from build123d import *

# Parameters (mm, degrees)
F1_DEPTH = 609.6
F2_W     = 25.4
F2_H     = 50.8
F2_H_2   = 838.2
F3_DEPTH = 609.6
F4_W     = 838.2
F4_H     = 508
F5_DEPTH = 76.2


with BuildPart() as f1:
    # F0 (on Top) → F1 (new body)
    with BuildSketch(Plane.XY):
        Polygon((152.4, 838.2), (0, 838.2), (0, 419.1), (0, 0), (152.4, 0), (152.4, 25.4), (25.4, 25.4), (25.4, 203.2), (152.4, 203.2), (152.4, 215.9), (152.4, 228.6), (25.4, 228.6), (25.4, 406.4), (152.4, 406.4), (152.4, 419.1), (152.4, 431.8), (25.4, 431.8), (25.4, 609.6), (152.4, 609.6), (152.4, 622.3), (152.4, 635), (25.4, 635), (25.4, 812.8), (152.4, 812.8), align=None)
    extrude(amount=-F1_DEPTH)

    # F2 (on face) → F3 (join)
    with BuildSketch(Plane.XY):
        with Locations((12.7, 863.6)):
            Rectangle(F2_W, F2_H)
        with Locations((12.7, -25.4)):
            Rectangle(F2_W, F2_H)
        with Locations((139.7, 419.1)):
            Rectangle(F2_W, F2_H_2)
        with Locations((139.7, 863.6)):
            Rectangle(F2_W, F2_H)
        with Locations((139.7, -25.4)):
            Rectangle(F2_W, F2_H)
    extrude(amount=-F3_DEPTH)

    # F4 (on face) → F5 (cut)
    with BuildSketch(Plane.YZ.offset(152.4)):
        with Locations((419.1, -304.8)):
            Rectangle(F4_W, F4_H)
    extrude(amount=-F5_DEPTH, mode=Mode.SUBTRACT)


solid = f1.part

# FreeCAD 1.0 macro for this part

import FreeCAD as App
import Part
import Sketcher

V = App.Vector
Q = App.Units.Quantity

doc = App.newDocument("Part")
body = doc.addObject("PartDesign::Body", "Body")

# Sketch on XY plane
sketch1 = body.newObject("Sketcher::SketchObject", "Sketch")
sketch1.AttachmentSupport = (doc.getObject("XY_Plane"), [""])
sketch1.MapMode = "FlatFace"
sketch1.addGeometry([
    Part.LineSegment(V(152.4, 838.2, 0), V(0, 838.2, 0)),  # 0
    Part.LineSegment(V(0, 838.2, 0), V(0, 0, 0)),  # 1
    Part.LineSegment(V(0, 0, 0), V(152.4, 0, 0)),  # 2
    Part.LineSegment(V(152.4, 0, 0), V(152.4, 25.4, 0)),  # 3
    Part.LineSegment(V(152.4, 25.4, 0), V(25.4, 25.4, 0)),  # 4
    Part.LineSegment(V(25.4, 25.4, 0), V(25.4, 203.2, 0)),  # 5
    Part.LineSegment(V(25.4, 203.2, 0), V(152.4, 203.2, 0)),  # 6
    Part.LineSegment(V(152.4, 203.2, 0), V(152.4, 228.6, 0)),  # 7
    Part.LineSegment(V(152.4, 228.6, 0), V(25.4, 228.6, 0)),  # 8
    Part.LineSegment(V(25.4, 228.6, 0), V(25.4, 406.4, 0)),  # 9
    Part.LineSegment(V(25.4, 406.4, 0), V(152.4, 406.4, 0)),  # 10
    Part.LineSegment(V(152.4, 406.4, 0), V(152.4, 431.8, 0)),  # 11
    Part.LineSegment(V(152.4, 431.8, 0), V(25.4, 431.8, 0)),  # 12
    Part.LineSegment(V(25.4, 431.8, 0), V(25.4, 609.6, 0)),  # 13
    Part.LineSegment(V(25.4, 609.6, 0), V(152.4, 609.6, 0)),  # 14
    Part.LineSegment(V(152.4, 609.6, 0), V(152.4, 635, 0)),  # 15
    Part.LineSegment(V(152.4, 635, 0), V(25.4, 635, 0)),  # 16
    Part.LineSegment(V(25.4, 635, 0), V(25.4, 812.8, 0)),  # 17
    Part.LineSegment(V(25.4, 812.8, 0), V(152.4, 812.8, 0)),  # 18
    Part.LineSegment(V(152.4, 812.8, 0), V(152.4, 838.2, 0)),  # 19
], False)
sketch1.addConstraint([
    Sketcher.Constraint("Coincident", 0, 2, 1, 1),
    Sketcher.Constraint("Coincident", 1, 2, 2, 1),
    Sketcher.Constraint("Coincident", 2, 2, 3, 1),
    Sketcher.Constraint("Coincident", 3, 2, 4, 1),
    Sketcher.Constraint("Coincident", 4, 2, 5, 1),
    Sketcher.Constraint("Coincident", 5, 2, 6, 1),
    Sketcher.Constraint("Coincident", 6, 2, 7, 1),
    Sketcher.Constraint("Coincident", 7, 2, 8, 1),
    Sketcher.Constraint("Coincident", 8, 2, 9, 1),
    Sketcher.Constraint("Coincident", 9, 2, 10, 1),
    Sketcher.Constraint("Coincident", 10, 2, 11, 1),
    Sketcher.Constraint("Coincident", 11, 2, 12, 1),
    Sketcher.Constraint("Coincident", 12, 2, 13, 1),
    Sketcher.Constraint("Coincident", 13, 2, 14, 1),
    Sketcher.Constraint("Coincident", 14, 2, 15, 1),
    Sketcher.Constraint("Coincident", 15, 2, 16, 1),
    Sketcher.Constraint("Coincident", 16, 2, 17, 1),
    Sketcher.Constraint("Coincident", 17, 2, 18, 1),
    Sketcher.Constraint("Coincident", 18, 2, 19, 1),
    Sketcher.Constraint("Coincident", 19, 2, 0, 1),
    Sketcher.Constraint("Horizontal", 0),
    Sketcher.Constraint("Vertical", 1),
    Sketcher.Constraint("Horizontal", 2),
    Sketcher.Constraint("Vertical", 3),
    Sketcher.Constraint("Horizontal", 4),
    Sketcher.Constraint("Vertical", 5),
    Sketcher.Constraint("Horizontal", 6),
    Sketcher.Constraint("Vertical", 7),
    Sketcher.Constraint("Horizontal", 8),
    Sketcher.Constraint("Vertical", 9),
    Sketcher.Constraint("Horizontal", 10),
    Sketcher.Constraint("Vertical", 11),
    Sketcher.Constraint("Horizontal", 12),
    Sketcher.Constraint("Vertical", 13),
    Sketcher.Constraint("Horizontal", 14),
    Sketcher.Constraint("Vertical", 15),
    Sketcher.Constraint("Horizontal", 16),
    Sketcher.Constraint("Vertical", 17),
    Sketcher.Constraint("Horizontal", 18),
    Sketcher.Constraint("Vertical", 19),
    Sketcher.Constraint("Coincident", 1, 2, -1, 1),
    Sketcher.Constraint("Vertical", 3, 2, 6, 2),
    Sketcher.Constraint("Vertical", 5, 2, 8, 2),
    Sketcher.Constraint("Vertical", 7, 2, 10, 2),
    Sketcher.Constraint("Vertical", 9, 2, 12, 2),
    Sketcher.Constraint("Vertical", 11, 2, 14, 2),
    Sketcher.Constraint("Vertical", 13, 2, 16, 2),
    Sketcher.Constraint("Vertical", 15, 2, 18, 2),
    Sketcher.Constraint("Equal", 3, 7),
    Sketcher.Constraint("Equal", 5, 9),
    Sketcher.Constraint("Equal", 7, 11),
    Sketcher.Constraint("Equal", 9, 13),
    Sketcher.Constraint("Equal", 11, 15),
    Sketcher.Constraint("Equal", 13, 17),
    Sketcher.Constraint("Equal", 15, 19),
    Sketcher.Constraint("DistanceX", 0, 2, 0, 1, Q("6 in")),
    Sketcher.Constraint("DistanceX", 4, 2, 4, 1, Q("5 in")),
    Sketcher.Constraint("DistanceY", 1, 2, 1, 1, Q("33 in")),
    Sketcher.Constraint("DistanceY", 3, 1, 3, 2, Q("1 in")),
])
pad1 = body.newObject("PartDesign::Pad", "Pad")
pad1.Profile = sketch1
pad1.Length = Q("24 in")
pad1.Reversed = True

# Sketch on XY plane
sketch2 = body.newObject("Sketcher::SketchObject", "Sketch001")
sketch2.AttachmentSupport = (doc.getObject("XY_Plane"), [""])
sketch2.MapMode = "FlatFace"
sketch2.addGeometry([
    Part.LineSegment(V(0, 889, 0), V(0, 838.2, 0)),  # 0
    Part.LineSegment(V(0, 838.2, 0), V(25.4, 838.2, 0)),  # 1
    Part.LineSegment(V(25.4, 838.2, 0), V(25.4, 889, 0)),  # 2
    Part.LineSegment(V(25.4, 889, 0), V(0, 889, 0)),  # 3
    Part.LineSegment(V(0, 0, 0), V(0, -50.8, 0)),  # 4
    Part.LineSegment(V(0, -50.8, 0), V(25.4, -50.8, 0)),  # 5
    Part.LineSegment(V(25.4, -50.8, 0), V(25.4, 0, 0)),  # 6
    Part.LineSegment(V(25.4, 0, 0), V(0, 0, 0)),  # 7
    Part.LineSegment(V(152.4, 889, 0), V(127, 889, 0)),  # 8
    Part.LineSegment(V(127, 889, 0), V(127, -50.8, 0)),  # 9
    Part.LineSegment(V(127, -50.8, 0), V(152.4, -50.8, 0)),  # 10
    Part.LineSegment(V(152.4, -50.8, 0), V(152.4, 889, 0)),  # 11
], False)
sketch2.addConstraint([
    Sketcher.Constraint("Coincident", 0, 2, 1, 1),
    Sketcher.Constraint("Coincident", 1, 2, 2, 1),
    Sketcher.Constraint("Coincident", 2, 2, 3, 1),
    Sketcher.Constraint("Coincident", 3, 2, 0, 1),
    Sketcher.Constraint("Coincident", 4, 2, 5, 1),
    Sketcher.Constraint("Coincident", 5, 2, 6, 1),
    Sketcher.Constraint("Coincident", 6, 2, 7, 1),
    Sketcher.Constraint("Coincident", 7, 2, 4, 1),
    Sketcher.Constraint("Coincident", 8, 2, 9, 1),
    Sketcher.Constraint("Coincident", 9, 2, 10, 1),
    Sketcher.Constraint("Coincident", 10, 2, 11, 1),
    Sketcher.Constraint("Coincident", 11, 2, 8, 1),
    Sketcher.Constraint("Vertical", 0),
    Sketcher.Constraint("Horizontal", 1),
    Sketcher.Constraint("Vertical", 2),
    Sketcher.Constraint("Horizontal", 3),
    Sketcher.Constraint("Vertical", 4),
    Sketcher.Constraint("Horizontal", 5),
    Sketcher.Constraint("Vertical", 6),
    Sketcher.Constraint("Horizontal", 7),
    Sketcher.Constraint("Horizontal", 8),
    Sketcher.Constraint("Vertical", 9),
    Sketcher.Constraint("Horizontal", 10),
    Sketcher.Constraint("Vertical", 11),
    Sketcher.Constraint("Coincident", 7, 2, -1, 1),
    Sketcher.Constraint("PointOnObject", 0, 2, -2),
    Sketcher.Constraint("Horizontal", 3, 2, 8, 2),
    Sketcher.Constraint("Horizontal", 5, 2, 9, 2),
    Sketcher.Constraint("Vertical", 2, 2, 5, 2),
    Sketcher.Constraint("Equal", 7, 8),
    Sketcher.Constraint("Equal", 2, 4),
    Sketcher.Constraint("DistanceX", 1, 1, 1, 2, Q("1 in")),
    Sketcher.Constraint("DistanceY", 0, 2, 0, 1, Q("2 in")),
    Sketcher.Constraint("DistanceY", 9, 2, 9, 1, Q("37 in")),
    Sketcher.Constraint("DistanceX", -1, 1, 8, 2, Q("5 in")),
])
pad2 = body.newObject("PartDesign::Pad", "Pad001")
pad2.Profile = sketch2
pad2.Length = Q("24 in")
pad2.Reversed = True

# Sketch on YZ plane
sketch3 = body.newObject("Sketcher::SketchObject", "Sketch002")
sketch3.AttachmentSupport = (doc.getObject("YZ_Plane"), [""])
sketch3.MapMode = "FlatFace"
sketch3.AttachmentOffset = App.Placement(V(0, 0, 6 * 25.4), App.Rotation())
sketch3.addGeometry([
    Part.LineSegment(V(0, -50.8, 0), V(0, -558.8, 0)),
    Part.LineSegment(V(0, -558.8, 0), V(838.2, -558.8, 0)),
    Part.LineSegment(V(838.2, -558.8, 0), V(838.2, -50.8, 0)),
    Part.LineSegment(V(838.2, -50.8, 0), V(0, -50.8, 0)),
], False)
sketch3.addConstraint([
    Sketcher.Constraint("Coincident", 0, 2, 1, 1),
    Sketcher.Constraint("Coincident", 1, 2, 2, 1),
    Sketcher.Constraint("Coincident", 2, 2, 3, 1),
    Sketcher.Constraint("Coincident", 3, 2, 0, 1),
    Sketcher.Constraint("Vertical", 0),
    Sketcher.Constraint("Horizontal", 1),
    Sketcher.Constraint("Vertical", 2),
    Sketcher.Constraint("Horizontal", 3),
    Sketcher.Constraint("PointOnObject", 0, 2, -2),
    Sketcher.Constraint("DistanceX", 1, 1, 1, 2, Q("33 in")),
    Sketcher.Constraint("DistanceY", 0, 2, 0, 1, Q("20 in")),
    Sketcher.Constraint("DistanceY", 0, 2, -1, 1, Q("22 in")),
])
pocket1 = body.newObject("PartDesign::Pocket", "Pocket")
pocket1.Profile = sketch3
pocket1.Length = Q("3 in")

doc.recompute()
